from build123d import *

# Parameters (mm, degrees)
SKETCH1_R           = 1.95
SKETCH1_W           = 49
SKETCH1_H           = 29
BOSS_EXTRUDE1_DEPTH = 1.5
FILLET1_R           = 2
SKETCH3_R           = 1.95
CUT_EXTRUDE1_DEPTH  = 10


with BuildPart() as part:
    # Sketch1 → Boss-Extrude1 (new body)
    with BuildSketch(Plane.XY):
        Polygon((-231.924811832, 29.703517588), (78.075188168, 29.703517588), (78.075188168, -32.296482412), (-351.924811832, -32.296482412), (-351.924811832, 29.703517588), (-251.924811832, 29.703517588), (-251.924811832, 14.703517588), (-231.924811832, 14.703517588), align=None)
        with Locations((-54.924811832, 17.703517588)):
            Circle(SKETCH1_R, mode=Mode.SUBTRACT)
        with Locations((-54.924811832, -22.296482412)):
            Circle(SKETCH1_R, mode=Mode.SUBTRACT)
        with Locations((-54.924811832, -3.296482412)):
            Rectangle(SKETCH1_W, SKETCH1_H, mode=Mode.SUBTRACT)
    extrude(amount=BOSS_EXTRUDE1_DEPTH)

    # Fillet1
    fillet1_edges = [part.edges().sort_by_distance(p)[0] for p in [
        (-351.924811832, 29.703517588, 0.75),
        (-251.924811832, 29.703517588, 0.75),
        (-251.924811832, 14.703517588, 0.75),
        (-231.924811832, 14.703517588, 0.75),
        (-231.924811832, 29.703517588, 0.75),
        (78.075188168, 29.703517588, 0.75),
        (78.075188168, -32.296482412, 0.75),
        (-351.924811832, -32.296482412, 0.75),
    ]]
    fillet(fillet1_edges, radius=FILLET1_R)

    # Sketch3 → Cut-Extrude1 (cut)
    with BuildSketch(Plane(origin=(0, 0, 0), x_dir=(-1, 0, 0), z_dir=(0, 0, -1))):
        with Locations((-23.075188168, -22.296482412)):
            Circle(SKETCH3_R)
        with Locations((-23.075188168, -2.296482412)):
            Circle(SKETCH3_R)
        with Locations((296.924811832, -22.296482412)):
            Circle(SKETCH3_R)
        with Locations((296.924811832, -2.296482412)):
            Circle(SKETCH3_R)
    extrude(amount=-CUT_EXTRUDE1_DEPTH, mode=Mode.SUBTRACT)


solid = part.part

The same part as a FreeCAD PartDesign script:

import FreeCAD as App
import Part
import Sketcher
Q = App.Units.Quantity


def edges_at(feature, points):
    """Names of the edges that pass closest to the given points."""
    edges = feature.Shape.Edges
    near = lambda p: min(range(len(edges)), key=lambda i: edges[i].distToShape(Part.Vertex(*p))[0])
    return sorted({f"Edge{near(p) + 1}" for p in points})

doc = App.newDocument("Part")
params = doc.addObject("Spreadsheet::Sheet", "Params")
for row, (alias, value) in enumerate([
    ("sketch1_diameter", "3.9 mm"),
    ("sketch1_width", "310 mm"),
    ("sketch1_width2", "20 mm"),
    ("sketch1_width3", "100 mm"),
    ("sketch1_width4", "49 mm"),
    ("pad1_length", "1.5 mm"),
    ("fillet_radius", "2 mm"),
    ("sketch2_diameter", "3.9 mm"),
    ("pocket1_length", "10 mm"),
], start=1):
    params.set(f"A{row}", alias)
    params.set(f"B{row}", "=" + value)
    params.setAlias(f"B{row}", alias)

body = doc.addObject("PartDesign::Body", "Body")

# Sketch on XY plane
sketch1 = body.newObject("Sketcher::SketchObject", "Sketch")
sketch1.AttachmentSupport = (doc.getObject("XY_Plane"), [""])
sketch1.MapMode = "FlatFace"
sketch1.addGeometry([
    Part.LineSegment(App.Vector(78.075188, 29.703518, 0), App.Vector(-231.924812, 29.703518, 0)),  # 0
    Part.LineSegment(App.Vector(-231.924812, 29.703518, 0), App.Vector(-231.924812, 14.703518, 0)),  # 1
    Part.LineSegment(App.Vector(-231.924812, 14.703518, 0), App.Vector(-251.924812, 14.703518, 0)),  # 2
    Part.LineSegment(App.Vector(-251.924812, 14.703518, 0), App.Vector(-251.924812, 29.703518, 0)),  # 3
    Part.LineSegment(App.Vector(-251.924812, 29.703518, 0), App.Vector(-351.924812, 29.703518, 0)),  # 4
    Part.LineSegment(App.Vector(-351.924812, 29.703518, 0), App.Vector(-351.924812, -32.296482, 0)),  # 5
    Part.LineSegment(App.Vector(-351.924812, -32.296482, 0), App.Vector(78.075188, -32.296482, 0)),  # 6
    Part.LineSegment(App.Vector(78.075188, -32.296482, 0), App.Vector(78.075188, 29.703518, 0)),  # 7
    Part.Circle(App.Vector(-54.924812, -22.296482, 0), App.Vector(0, 0, 1), 1.95),  # 8
    Part.LineSegment(App.Vector(-79.424812, -17.796482, 0), App.Vector(-79.424812, 11.203518, 0)),  # 9
    Part.LineSegment(App.Vector(-79.424812, 11.203518, 0), App.Vector(-30.424812, 11.203518, 0)),  # 10
    Part.LineSegment(App.Vector(-30.424812, 11.203518, 0), App.Vector(-30.424812, -17.796482, 0)),  # 11
    Part.LineSegment(App.Vector(-30.424812, -17.796482, 0), App.Vector(-79.424812, -17.796482, 0)),  # 12
    Part.Circle(App.Vector(-54.924812, 17.703518, 0), App.Vector(0, 0, 1), 1.95),  # 13
], False)
sketch1.addConstraint([
    Sketcher.Constraint("Coincident", 0, 2, 1, 1),
    Sketcher.Constraint("Coincident", 1, 2, 2, 1),
    Sketcher.Constraint("Coincident", 2, 2, 3, 1),
    Sketcher.Constraint("Coincident", 3, 2, 4, 1),
    Sketcher.Constraint("Coincident", 4, 2, 5, 1),
    Sketcher.Constraint("Coincident", 5, 2, 6, 1),
    Sketcher.Constraint("Coincident", 6, 2, 7, 1),
    Sketcher.Constraint("Coincident", 7, 2, 0, 1),
    Sketcher.Constraint("Coincident", 9, 2, 10, 1),
    Sketcher.Constraint("Coincident", 10, 2, 11, 1),
    Sketcher.Constraint("Coincident", 11, 2, 12, 1),
    Sketcher.Constraint("Coincident", 12, 2, 9, 1),
    Sketcher.Constraint("Horizontal", 0),
    Sketcher.Constraint("Vertical", 1),
    Sketcher.Constraint("Horizontal", 2),
    Sketcher.Constraint("Vertical", 3),
    Sketcher.Constraint("Horizontal", 4),
    Sketcher.Constraint("Vertical", 5),
    Sketcher.Constraint("Horizontal", 6),
    Sketcher.Constraint("Vertical", 7),
    Sketcher.Constraint("Vertical", 9),
    Sketcher.Constraint("Horizontal", 10),
    Sketcher.Constraint("Vertical", 11),
    Sketcher.Constraint("Horizontal", 12),
    Sketcher.Constraint("Equal", 8, 13),
    Sketcher.Constraint("Horizontal", 0, 2, 3, 2),
    Sketcher.Constraint("Vertical", 8, 3, 13, 3),
    Sketcher.Constraint("Diameter", 8, Q("3.9 mm")),
    Sketcher.Constraint("DistanceX", 0, 2, 0, 1, Q("310 mm")),
    Sketcher.Constraint("DistanceX", 2, 2, 2, 1, Q("20 mm")),
    Sketcher.Constraint("DistanceX", 4, 2, 4, 1, Q("100 mm")),
    Sketcher.Constraint("DistanceX", 10, 1, 10, 2, Q("49 mm")),
    Sketcher.Constraint("DistanceY", 1, 2, 1, 1, Q("15 mm")),
    Sketcher.Constraint("DistanceY", 5, 2, 5, 1, Q("62 mm")),
    Sketcher.Constraint("DistanceY", 9, 1, 9, 2, Q("29 mm")),
    Sketcher.Constraint("DistanceY", 8, 3, 13, 3, Q("40 mm")),
    Sketcher.Constraint("DistanceX", 0, 2, 13, 3, Q("177 mm")),
    Sketcher.Constraint("DistanceY", 13, 3, 0, 2, Q("12 mm")),
    Sketcher.Constraint("DistanceX", 9, 2, 13, 3, Q("24.5 mm")),
    Sketcher.Constraint("DistanceY", 9, 2, 13, 3, Q("6.5 mm")),
    Sketcher.Constraint("DistanceX", 8, 3, -1, 1, Q("54.924812 mm")),
    Sketcher.Constraint("DistanceY", 8, 3, -1, 1, Q("22.296482 mm")),
])
sketch1.setExpression("Constraints[27]", "Params.sketch1_diameter")
sketch1.setExpression("Constraints[28]", "Params.sketch1_width")
sketch1.setExpression("Constraints[29]", "Params.sketch1_width2")
sketch1.setExpression("Constraints[30]", "Params.sketch1_width3")
sketch1.setExpression("Constraints[31]", "Params.sketch1_width4")
pad1 = body.newObject("PartDesign::Pad", "Pad")
pad1.Profile = sketch1
pad1.setExpression("Length", "Params.pad1_length")
doc.recompute()

fillet = body.newObject("PartDesign::Fillet", "Fillet")
fillet.Base = (pad1, edges_at(pad1, [
    (-351.925, 29.704, 0.75),
    (-251.925, 29.704, 0.75),
    (-251.925, 14.704, 0.75),
    (-231.925, 14.704, 0.75),
    (-231.925, 29.704, 0.75),
    (78.075, 29.704, 0.75),
    (78.075, -32.296, 0.75),
    (-351.925, -32.296, 0.75),
]))
fillet.setExpression("Radius", "Params.fillet_radius")

# Sketch on XY plane
sketch2 = body.newObject("Sketcher::SketchObject", "Sketch001")
sketch2.AttachmentSupport = (doc.getObject("XY_Plane"), [""])
sketch2.MapMode = "FlatFace"
sketch2.addGeometry([
    Part.Circle(App.Vector(23.075188, -22.296482, 0), App.Vector(0, 0, 1), 1.95),
    Part.Circle(App.Vector(23.075188, -2.296482, 0), App.Vector(0, 0, 1), 1.95),
    Part.Circle(App.Vector(-296.924812, -22.296482, 0), App.Vector(0, 0, 1), 1.95),
    Part.Circle(App.Vector(-296.924812, -2.296482, 0), App.Vector(0, 0, 1), 1.95),
], False)
sketch2.addConstraint([
    Sketcher.Constraint("Equal", 0, 1),
    Sketcher.Constraint("Equal", 1, 2),
    Sketcher.Constraint("Equal", 2, 3),
    Sketcher.Constraint("Horizontal", 0, 3, 2, 3),
    Sketcher.Constraint("Horizontal", 1, 3, 3, 3),
    Sketcher.Constraint("Vertical", 0, 3, 1, 3),
    Sketcher.Constraint("Vertical", 2, 3, 3, 3),
    Sketcher.Constraint("Diameter", 0, Q("3.9 mm")),
    Sketcher.Constraint("DistanceY", 0, 3, 1, 3, Q("20 mm")),
    Sketcher.Constraint("DistanceX", 2, 3, 0, 3, Q("320 mm")),
    Sketcher.Constraint("DistanceX", -1, 1, 0, 3, Q("23.075188 mm")),
    Sketcher.Constraint("DistanceY", 0, 3, -1, 1, Q("22.296482 mm")),
])
sketch2.setExpression("Constraints[7]", "Params.sketch2_diameter")
pocket1 = body.newObject("PartDesign::Pocket", "Pocket")
pocket1.Profile = sketch2
pocket1.setExpression("Length", "Params.pocket1_length")
pocket1.Reversed = True

doc.recompute()
